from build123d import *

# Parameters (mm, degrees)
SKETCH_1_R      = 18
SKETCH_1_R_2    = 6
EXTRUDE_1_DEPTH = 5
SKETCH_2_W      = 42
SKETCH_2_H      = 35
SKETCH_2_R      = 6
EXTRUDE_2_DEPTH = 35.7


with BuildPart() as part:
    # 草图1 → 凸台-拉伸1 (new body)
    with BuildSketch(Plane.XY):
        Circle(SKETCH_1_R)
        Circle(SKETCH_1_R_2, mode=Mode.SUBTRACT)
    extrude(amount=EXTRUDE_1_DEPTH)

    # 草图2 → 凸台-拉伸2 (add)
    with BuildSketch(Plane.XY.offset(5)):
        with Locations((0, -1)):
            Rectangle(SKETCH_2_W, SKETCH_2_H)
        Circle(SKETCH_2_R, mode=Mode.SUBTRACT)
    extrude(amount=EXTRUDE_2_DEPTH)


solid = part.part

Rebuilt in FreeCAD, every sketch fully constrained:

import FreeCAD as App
import Part
import Sketcher
Q = App.Units.Quantity


def add_polygon(sketch, points):
    """Adds a closed chain of lines whose ends are joined by coincident constraints."""
    first, n = sketch.GeometryCount, len(points)
    for a, b in zip(points, points[1:] + points[:1]):
        sketch.addGeometry(Part.LineSegment(App.Vector(*a, 0), App.Vector(*b, 0)), False)
    for i in range(n):
        sketch.addConstraint(Sketcher.Constraint("Coincident", first + i, 2, first + (i + 1) % n, 1))

doc = App.newDocument("Part")
body = doc.addObject("PartDesign::Body", "Body")

# Sketch on XY plane
sketch1 = body.newObject("Sketcher::SketchObject", "Sketch")
sketch1.AttachmentSupport = (doc.getObject("XY_Plane"), [""])
sketch1.MapMode = "FlatFace"
sketch1.addGeometry([
    Part.Circle(App.Vector(0, 0, 0), App.Vector(0, 0, 1), 18),
    Part.Circle(App.Vector(0, 0, 0), App.Vector(0, 0, 1), 6),
], False)
sketch1.addConstraint([
    Sketcher.Constraint("Coincident", 0, 3, -1, 1),
    Sketcher.Constraint("Coincident", 1, 3, -1, 1),
    Sketcher.Constraint("Diameter", 0, Q("36 mm")),
    Sketcher.Constraint("Diameter", 1, Q("12 mm")),
])
pad1 = body.newObject("PartDesign::Pad", "Pad")
pad1.Profile = sketch1
pad1.Length = 5

# Sketch on XY plane
sketch2 = body.newObject("Sketcher::SketchObject", "Sketch001")
sketch2.AttachmentSupport = (doc.getObject("XY_Plane"), [""])
sketch2.MapMode = "FlatFace"
sketch2.AttachmentOffset = App.Placement(App.Vector(0, 0, 5), App.Rotation())
add_polygon(sketch2, [(-21, 16), (-21, -18), (21, -18), (21, 16)])  # lines 0-3
sketch2.addGeometry(Part.Circle(App.Vector(0, 0, 0), App.Vector(0, 0, 1), 6), False)  # 4
sketch2.addConstraint([
    Sketcher.Constraint("Vertical", 0),
    Sketcher.Constraint("Horizontal", 1),
    Sketcher.Constraint("Vertical", 2),
    Sketcher.Constraint("Horizontal", 3),
    Sketcher.Constraint("Coincident", 4, 3, -1, 1),
    Sketcher.Constraint("Diameter", 4, Q("12 mm")),
    Sketcher.Constraint("DistanceX", 1, 1, 1, 2, Q("42 mm")),
    Sketcher.Constraint("DistanceY", 0, 2, 0, 1, Q("35 mm")),
    Sketcher.Constraint("DistanceX", 0, 2, -1, 1, Q("21 mm")),
    Sketcher.Constraint("DistanceY", 0, 2, -1, 1, Q("18.5 mm")),
])
pad2 = body.newObject("PartDesign::Pad", "Pad001")
pad2.Profile = sketch2
pad2.Length = 35.7

doc.recompute()
